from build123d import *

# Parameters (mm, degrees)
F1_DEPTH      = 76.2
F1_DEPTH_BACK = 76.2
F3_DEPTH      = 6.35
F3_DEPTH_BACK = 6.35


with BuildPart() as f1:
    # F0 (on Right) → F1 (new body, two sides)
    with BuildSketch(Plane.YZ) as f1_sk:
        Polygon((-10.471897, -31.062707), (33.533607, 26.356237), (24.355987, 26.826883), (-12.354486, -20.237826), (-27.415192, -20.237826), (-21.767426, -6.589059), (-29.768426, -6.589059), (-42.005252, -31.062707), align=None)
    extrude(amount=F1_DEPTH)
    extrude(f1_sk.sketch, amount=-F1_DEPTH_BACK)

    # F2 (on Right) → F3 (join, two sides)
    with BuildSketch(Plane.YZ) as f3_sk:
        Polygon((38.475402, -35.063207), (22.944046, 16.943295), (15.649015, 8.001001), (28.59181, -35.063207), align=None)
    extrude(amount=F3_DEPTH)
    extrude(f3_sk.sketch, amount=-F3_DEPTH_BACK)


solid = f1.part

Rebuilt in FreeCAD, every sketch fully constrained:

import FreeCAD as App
import Part
import Sketcher
from FreeCAD import Vector
Q = App.Units.Quantity


def add_polygon(sketch, points):
    """Adds a closed chain of lines whose ends are joined by coincident constraints."""
    first, n = sketch.GeometryCount, len(points)
    for a, b in zip(points, points[1:] + points[:1]):
        sketch.addGeometry(Part.LineSegment(App.Vector(*a, 0), App.Vector(*b, 0)), False)
    for i in range(n):
        sketch.addConstraint(Sketcher.Constraint("Coincident", first + i, 2, first + (i + 1) % n, 1))

doc = App.newDocument("Part")
body = doc.addObject("PartDesign::Body", "Body")

# Sketch on YZ plane
sketch1 = doc.addObject("Sketcher::SketchObject", "Sketch")
body.addObject(sketch1)
sketch1.AttachmentSupport = (doc.YZ_Plane, [""])
sketch1.MapMode = "FlatFace"
add_polygon(sketch1, [(-10, -31), (34, 26), (24, 27), (-12, -20), (-27, -20), (-22, -7), (-30, -7), (-42, -31)])  # lines 0-7
sketch1.addConstraint(Sketcher.Constraint("Horizontal", 3))
sketch1.addConstraint(Sketcher.Constraint("Horizontal", 5))
sketch1.addConstraint(Sketcher.Constraint("Horizontal", 7))
sketch1.addConstraint(Sketcher.Constraint("DistanceX", 5, 2, 5, 1, Q("0.315 in")))
sketch1.addConstraint(Sketcher.Constraint("DistanceX", 3, 2, 0, 2, 60.948799))
sketch1.addConstraint(Sketcher.Constraint("Distance", 1, 9.18968))
sketch1.addConstraint(Sketcher.Constraint("Distance", 2, 59.68874))
sketch1.addConstraint(Sketcher.Constraint("Distance", 6, 27.362371))
sketch1.addConstraint(Sketcher.Constraint("DistanceX", 3, 2, 3, 1, 15.060706))
sketch1.addConstraint(Sketcher.Constraint("DistanceX", 7, 1, 7, 2, 31.533355))
sketch1.addConstraint(Sketcher.Constraint("DistanceY", 4, 2, -1, 1, 6.589059))
sketch1.addConstraint(Sketcher.Constraint("DistanceX", 1, 2, 0, 2, 9.17762))
sketch1.addConstraint(Sketcher.Constraint("DistanceX", 4, 2, 2, 2, 9.41294))
sketch1.addConstraint(Sketcher.Constraint("DistanceX", 6, 2, 3, 2, 14.59006))
sketch1.addConstraint(Sketcher.Constraint("DistanceY", 6, 2, 3, 2, 10.824881))
sketch1.addConstraint(Sketcher.Constraint("DistanceX", -1, 1, 0, 2, 33.533607))
pad1 = doc.addObject("PartDesign::Pad", "Pad")
body.addObject(pad1)
pad1.Profile = sketch1
pad1.Type = "TwoLengths"
pad1.Length = Q("3 in")
pad1.Length2 = Q("3 in")

# Sketch on YZ plane
sketch2 = doc.addObject("Sketcher::SketchObject", "Sketch001")
body.addObject(sketch2)
sketch2.AttachmentSupport = (doc.YZ_Plane, [""])
sketch2.MapMode = "FlatFace"
add_polygon(sketch2, [(38, -35), (23, 17), (16, 8), (29, -35)])  # lines 0-3
sketch2.addConstraint(Sketcher.Constraint("Horizontal", 3))
sketch2.addConstraint(Sketcher.Constraint("DistanceY", -1, 1, 1, 2, Q("0.315 in")))
sketch2.addConstraint(Sketcher.Constraint("DistanceY", 2, 2, 0, 2, Q("2.0475001 in")))
sketch2.addConstraint(Sketcher.Constraint("Distance", 0, 54.276139))
sketch2.addConstraint(Sketcher.Constraint("Distance", 2, 44.967121))
sketch2.addConstraint(Sketcher.Constraint("DistanceX", 3, 1, 3, 2, 9.883592))
sketch2.addConstraint(Sketcher.Constraint("DistanceX", -1, 1, 2, 2, 28.59181))
sketch2.addConstraint(Sketcher.Constraint("DistanceX", 1, 2, 0, 2, 7.295031))
pad2 = doc.addObject("PartDesign::Pad", "Pad001")
body.addObject(pad2)
pad2.Profile = sketch2
pad2.Type = "TwoLengths"
pad2.Length = Q("0.25 in")
pad2.Length2 = Q("0.25 in")

doc.recompute()
